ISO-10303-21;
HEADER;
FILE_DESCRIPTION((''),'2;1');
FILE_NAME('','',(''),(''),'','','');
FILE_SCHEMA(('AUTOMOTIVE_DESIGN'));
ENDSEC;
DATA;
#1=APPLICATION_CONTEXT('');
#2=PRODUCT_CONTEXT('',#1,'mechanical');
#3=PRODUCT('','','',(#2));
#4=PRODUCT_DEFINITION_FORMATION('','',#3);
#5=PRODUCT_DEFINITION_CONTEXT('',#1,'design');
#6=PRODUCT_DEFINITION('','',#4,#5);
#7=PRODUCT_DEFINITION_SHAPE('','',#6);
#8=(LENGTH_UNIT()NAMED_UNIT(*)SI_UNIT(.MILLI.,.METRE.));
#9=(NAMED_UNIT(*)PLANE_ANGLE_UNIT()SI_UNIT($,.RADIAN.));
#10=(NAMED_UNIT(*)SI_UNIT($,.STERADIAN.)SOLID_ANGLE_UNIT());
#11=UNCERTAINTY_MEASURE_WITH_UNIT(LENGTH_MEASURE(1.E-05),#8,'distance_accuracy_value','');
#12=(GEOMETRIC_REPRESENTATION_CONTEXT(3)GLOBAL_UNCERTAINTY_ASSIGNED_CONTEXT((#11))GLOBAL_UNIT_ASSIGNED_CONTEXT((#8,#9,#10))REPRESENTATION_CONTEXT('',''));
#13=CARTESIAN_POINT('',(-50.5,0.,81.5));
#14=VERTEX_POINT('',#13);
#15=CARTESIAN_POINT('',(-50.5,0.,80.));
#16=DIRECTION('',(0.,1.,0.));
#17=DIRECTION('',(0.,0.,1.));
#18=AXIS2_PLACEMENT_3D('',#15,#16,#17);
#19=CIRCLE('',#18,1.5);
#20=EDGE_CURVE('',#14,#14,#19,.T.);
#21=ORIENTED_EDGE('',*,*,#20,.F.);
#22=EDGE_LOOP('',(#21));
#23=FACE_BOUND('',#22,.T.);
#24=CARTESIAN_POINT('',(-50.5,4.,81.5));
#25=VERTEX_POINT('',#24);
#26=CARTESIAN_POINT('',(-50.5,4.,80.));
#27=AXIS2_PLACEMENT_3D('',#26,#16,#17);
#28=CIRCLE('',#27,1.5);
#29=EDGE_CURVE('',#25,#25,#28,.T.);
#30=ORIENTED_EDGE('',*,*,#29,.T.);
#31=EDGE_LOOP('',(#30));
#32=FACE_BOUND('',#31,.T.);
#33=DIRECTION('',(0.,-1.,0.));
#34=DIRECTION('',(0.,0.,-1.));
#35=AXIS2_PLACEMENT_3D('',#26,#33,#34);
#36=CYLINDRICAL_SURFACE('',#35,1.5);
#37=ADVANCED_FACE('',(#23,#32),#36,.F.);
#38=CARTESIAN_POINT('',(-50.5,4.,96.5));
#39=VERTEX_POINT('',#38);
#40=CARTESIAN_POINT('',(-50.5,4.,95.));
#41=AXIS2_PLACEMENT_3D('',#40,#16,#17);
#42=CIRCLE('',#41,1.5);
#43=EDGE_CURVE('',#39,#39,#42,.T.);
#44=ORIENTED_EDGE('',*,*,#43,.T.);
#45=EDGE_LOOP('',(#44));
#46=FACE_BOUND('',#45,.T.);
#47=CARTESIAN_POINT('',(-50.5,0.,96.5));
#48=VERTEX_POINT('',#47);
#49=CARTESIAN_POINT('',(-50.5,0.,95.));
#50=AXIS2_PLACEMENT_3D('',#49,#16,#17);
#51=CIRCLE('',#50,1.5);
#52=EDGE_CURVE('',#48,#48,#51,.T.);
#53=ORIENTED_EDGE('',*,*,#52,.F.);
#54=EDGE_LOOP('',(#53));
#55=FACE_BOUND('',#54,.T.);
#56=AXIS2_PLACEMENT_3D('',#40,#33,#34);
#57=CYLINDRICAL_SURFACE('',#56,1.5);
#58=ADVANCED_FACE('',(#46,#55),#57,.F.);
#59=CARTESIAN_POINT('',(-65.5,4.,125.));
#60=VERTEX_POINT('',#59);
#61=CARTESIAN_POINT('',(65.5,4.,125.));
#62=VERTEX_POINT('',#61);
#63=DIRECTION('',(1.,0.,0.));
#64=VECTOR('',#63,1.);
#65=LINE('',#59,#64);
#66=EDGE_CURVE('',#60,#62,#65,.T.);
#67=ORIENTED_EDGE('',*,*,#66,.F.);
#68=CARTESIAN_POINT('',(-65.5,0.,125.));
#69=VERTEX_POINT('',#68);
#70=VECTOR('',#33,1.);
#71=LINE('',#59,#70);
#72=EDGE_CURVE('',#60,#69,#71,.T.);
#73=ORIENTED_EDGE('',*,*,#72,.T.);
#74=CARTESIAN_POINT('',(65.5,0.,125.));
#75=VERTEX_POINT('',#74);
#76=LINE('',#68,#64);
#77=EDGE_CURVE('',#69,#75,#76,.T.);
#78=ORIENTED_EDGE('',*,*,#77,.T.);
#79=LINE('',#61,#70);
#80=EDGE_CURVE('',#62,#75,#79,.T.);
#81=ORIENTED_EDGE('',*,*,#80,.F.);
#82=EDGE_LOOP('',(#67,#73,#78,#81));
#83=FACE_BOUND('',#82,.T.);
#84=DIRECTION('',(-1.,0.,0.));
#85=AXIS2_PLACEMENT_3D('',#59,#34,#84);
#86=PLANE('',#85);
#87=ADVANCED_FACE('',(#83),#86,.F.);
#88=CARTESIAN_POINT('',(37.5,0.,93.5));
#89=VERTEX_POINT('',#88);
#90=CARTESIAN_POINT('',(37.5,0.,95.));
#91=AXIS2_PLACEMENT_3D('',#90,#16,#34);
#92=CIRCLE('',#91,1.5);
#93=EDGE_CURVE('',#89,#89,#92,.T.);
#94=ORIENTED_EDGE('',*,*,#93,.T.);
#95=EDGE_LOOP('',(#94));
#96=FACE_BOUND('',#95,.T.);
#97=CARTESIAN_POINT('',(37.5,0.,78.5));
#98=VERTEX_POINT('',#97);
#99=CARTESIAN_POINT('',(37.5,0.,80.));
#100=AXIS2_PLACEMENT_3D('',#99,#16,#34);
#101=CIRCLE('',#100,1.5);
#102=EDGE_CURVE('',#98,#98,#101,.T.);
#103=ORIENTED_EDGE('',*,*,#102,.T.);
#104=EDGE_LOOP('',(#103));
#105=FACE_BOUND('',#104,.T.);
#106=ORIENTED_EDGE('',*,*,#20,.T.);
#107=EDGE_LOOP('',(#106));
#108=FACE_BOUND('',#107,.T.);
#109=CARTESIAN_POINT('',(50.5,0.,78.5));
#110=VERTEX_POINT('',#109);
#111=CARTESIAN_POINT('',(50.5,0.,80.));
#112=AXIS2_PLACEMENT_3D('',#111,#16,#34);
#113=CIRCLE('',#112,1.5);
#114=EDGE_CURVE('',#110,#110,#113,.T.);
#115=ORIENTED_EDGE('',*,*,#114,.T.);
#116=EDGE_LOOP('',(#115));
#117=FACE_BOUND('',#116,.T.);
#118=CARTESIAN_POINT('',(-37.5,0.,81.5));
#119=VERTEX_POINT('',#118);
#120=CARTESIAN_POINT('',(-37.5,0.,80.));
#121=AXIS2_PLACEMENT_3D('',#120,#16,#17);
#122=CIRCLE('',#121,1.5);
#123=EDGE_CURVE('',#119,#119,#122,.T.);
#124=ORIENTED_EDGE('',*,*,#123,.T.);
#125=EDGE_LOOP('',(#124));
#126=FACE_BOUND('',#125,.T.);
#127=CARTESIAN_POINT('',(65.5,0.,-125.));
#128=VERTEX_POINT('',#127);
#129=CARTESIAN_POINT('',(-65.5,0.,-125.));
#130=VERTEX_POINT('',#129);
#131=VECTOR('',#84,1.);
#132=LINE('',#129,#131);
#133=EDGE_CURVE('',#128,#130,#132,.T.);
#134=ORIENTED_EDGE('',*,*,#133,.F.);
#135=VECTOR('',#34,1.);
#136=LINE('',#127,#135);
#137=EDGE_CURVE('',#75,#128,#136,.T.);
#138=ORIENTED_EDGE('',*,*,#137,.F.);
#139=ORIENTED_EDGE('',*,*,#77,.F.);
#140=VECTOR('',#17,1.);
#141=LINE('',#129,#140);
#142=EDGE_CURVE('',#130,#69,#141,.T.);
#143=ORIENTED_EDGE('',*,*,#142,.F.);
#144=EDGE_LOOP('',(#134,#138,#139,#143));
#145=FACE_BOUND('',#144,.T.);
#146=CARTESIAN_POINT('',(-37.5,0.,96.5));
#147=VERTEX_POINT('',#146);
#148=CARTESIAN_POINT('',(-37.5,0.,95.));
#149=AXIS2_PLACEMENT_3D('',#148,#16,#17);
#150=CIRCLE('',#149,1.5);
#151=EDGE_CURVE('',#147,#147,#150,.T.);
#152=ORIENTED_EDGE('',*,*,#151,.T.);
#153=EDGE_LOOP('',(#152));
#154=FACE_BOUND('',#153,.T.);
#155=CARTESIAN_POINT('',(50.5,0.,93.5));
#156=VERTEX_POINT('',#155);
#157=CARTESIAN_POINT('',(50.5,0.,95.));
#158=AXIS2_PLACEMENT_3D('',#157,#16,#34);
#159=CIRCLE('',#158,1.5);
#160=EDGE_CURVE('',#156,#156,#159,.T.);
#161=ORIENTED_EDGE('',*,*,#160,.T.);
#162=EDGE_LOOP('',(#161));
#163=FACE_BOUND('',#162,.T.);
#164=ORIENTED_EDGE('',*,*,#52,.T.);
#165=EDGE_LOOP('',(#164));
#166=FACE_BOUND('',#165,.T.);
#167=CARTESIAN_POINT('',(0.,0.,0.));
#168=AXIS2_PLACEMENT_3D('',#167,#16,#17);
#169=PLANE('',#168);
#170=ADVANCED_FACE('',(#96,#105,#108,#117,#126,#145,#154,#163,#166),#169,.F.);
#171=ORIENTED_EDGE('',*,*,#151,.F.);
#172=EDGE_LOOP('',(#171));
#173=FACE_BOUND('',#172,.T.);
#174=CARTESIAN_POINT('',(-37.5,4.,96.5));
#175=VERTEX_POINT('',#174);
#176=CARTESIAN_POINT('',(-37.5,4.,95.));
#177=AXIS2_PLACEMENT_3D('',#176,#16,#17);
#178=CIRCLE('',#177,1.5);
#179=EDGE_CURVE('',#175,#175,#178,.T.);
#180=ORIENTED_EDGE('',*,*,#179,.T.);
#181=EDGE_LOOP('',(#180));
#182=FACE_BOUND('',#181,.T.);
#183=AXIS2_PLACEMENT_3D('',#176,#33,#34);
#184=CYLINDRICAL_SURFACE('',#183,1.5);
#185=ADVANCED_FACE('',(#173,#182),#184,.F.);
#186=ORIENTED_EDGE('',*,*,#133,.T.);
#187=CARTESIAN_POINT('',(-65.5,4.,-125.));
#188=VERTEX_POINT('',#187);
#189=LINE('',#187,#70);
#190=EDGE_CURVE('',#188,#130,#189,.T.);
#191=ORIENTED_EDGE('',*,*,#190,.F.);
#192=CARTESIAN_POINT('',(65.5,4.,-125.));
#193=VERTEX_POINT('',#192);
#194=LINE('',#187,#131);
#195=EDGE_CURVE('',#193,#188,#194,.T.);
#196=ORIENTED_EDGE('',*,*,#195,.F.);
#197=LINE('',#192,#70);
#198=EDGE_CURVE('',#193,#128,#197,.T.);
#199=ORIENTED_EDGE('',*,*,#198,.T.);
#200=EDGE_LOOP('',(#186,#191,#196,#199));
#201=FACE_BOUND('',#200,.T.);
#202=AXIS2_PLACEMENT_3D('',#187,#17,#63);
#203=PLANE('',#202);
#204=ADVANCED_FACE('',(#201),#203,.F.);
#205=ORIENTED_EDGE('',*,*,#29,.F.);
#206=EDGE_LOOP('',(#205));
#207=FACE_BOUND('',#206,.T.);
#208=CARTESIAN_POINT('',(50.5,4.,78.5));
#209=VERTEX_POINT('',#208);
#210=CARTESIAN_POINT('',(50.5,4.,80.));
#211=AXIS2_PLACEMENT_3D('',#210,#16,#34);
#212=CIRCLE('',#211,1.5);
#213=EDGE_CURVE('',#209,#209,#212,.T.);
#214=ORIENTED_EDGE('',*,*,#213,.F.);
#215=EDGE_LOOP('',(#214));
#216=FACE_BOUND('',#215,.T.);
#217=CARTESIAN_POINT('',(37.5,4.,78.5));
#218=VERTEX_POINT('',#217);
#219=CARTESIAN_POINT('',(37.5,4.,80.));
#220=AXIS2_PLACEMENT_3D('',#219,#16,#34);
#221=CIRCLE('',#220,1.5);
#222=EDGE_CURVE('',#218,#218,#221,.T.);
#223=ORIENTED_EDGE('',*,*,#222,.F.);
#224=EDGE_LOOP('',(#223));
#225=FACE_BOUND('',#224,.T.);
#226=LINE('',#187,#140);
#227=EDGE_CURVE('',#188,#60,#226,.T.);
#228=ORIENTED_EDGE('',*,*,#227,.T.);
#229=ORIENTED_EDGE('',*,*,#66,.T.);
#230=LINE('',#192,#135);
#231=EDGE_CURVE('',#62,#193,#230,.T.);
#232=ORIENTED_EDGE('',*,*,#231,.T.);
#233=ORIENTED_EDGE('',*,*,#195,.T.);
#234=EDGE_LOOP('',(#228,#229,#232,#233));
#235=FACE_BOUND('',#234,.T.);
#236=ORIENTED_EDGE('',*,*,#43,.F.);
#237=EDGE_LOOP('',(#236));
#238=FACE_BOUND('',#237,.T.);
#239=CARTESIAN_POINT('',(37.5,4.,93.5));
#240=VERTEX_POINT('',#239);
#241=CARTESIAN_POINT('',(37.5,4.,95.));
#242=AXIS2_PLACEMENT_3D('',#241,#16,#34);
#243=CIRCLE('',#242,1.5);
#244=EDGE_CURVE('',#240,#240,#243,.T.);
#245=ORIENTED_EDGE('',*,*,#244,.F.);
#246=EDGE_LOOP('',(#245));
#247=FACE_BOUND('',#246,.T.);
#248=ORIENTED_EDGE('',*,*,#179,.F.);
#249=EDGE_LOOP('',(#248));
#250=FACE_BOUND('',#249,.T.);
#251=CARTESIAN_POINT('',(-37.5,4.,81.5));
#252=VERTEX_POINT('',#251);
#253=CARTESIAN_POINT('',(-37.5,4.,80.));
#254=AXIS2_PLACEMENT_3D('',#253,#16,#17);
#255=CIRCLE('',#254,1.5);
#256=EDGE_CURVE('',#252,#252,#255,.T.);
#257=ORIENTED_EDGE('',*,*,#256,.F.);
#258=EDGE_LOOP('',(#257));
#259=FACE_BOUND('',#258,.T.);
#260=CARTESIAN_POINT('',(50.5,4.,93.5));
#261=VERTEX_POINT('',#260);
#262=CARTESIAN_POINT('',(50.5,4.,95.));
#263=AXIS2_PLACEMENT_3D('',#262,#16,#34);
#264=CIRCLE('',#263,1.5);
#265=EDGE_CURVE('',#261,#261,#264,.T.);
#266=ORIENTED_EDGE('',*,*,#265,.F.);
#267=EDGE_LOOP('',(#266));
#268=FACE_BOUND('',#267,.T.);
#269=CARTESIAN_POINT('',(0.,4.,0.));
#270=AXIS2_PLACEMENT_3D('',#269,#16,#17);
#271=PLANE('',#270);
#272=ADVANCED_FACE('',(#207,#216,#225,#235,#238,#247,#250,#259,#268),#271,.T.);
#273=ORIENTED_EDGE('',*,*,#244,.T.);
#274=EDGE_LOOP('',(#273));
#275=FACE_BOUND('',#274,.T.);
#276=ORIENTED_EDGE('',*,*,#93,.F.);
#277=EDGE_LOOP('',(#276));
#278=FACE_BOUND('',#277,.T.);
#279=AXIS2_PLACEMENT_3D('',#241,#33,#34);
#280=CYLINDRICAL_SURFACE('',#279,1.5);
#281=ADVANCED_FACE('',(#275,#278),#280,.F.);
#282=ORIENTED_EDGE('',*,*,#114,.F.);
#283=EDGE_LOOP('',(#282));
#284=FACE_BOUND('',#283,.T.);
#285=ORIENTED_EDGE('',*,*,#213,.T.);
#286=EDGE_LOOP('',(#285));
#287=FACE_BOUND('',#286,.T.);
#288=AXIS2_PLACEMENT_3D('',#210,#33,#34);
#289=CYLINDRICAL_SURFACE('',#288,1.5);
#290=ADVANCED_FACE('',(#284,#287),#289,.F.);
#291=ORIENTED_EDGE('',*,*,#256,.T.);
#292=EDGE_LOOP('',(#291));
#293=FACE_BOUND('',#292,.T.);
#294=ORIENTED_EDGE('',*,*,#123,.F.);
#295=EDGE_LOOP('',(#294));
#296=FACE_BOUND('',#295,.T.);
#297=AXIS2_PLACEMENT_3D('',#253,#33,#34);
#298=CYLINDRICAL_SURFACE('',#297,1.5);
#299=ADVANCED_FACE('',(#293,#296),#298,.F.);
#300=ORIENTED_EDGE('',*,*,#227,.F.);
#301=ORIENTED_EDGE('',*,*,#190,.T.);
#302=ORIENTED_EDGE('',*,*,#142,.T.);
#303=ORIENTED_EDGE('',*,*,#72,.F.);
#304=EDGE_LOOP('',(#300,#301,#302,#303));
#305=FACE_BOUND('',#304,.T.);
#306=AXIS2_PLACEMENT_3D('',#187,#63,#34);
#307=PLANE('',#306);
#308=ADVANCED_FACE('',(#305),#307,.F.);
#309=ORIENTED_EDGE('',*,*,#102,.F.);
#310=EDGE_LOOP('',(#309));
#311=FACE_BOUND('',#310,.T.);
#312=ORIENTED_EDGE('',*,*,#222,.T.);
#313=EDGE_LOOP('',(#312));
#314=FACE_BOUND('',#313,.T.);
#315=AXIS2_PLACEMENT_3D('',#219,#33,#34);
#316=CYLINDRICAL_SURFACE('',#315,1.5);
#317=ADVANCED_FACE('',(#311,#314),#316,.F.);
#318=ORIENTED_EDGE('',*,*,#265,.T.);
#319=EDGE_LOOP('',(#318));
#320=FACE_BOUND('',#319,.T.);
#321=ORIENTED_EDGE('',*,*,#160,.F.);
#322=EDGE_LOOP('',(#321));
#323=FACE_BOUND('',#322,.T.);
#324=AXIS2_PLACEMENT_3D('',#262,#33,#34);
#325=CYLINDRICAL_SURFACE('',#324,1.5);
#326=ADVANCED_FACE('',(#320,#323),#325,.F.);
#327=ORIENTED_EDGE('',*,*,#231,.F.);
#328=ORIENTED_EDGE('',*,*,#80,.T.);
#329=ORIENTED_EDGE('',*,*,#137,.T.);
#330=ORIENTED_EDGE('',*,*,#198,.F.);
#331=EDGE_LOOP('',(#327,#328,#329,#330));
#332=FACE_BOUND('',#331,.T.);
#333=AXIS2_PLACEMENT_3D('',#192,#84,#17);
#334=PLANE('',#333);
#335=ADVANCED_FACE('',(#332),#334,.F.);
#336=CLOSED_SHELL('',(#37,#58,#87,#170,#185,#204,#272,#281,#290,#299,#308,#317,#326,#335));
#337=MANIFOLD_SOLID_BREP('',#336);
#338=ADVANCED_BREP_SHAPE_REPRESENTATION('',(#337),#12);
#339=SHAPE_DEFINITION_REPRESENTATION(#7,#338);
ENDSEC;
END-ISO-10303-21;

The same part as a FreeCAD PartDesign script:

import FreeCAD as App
import Part
import Sketcher

doc = App.newDocument("Part")
body = doc.addObject("PartDesign::Body", "Body")

sketch1 = body.newObject("Sketcher::SketchObject", "Sketch")
sketch1.AttachmentSupport = (doc.getObject("XZ_Plane"), [""])
sketch1.MapMode = "FlatFace"
sketch1.addGeometry([
    Part.LineSegment(App.Vector(-65.5, -125, 0), App.Vector(-65.5, 125, 0)),
    Part.LineSegment(App.Vector(-65.5, 125, 0), App.Vector(65.5, 125, 0)),
    Part.LineSegment(App.Vector(65.5, 125, 0), App.Vector(65.5, -125, 0)),
    Part.LineSegment(App.Vector(65.5, -125, 0), App.Vector(-65.5, -125, 0)),
    Part.Circle(App.Vector(-50.5, 95, 0), App.Vector(0, 0, 1), 1.5),
    Part.Circle(App.Vector(-37.5, 95, 0), App.Vector(0, 0, 1), 1.5),
    Part.Circle(App.Vector(37.5, 95, 0), App.Vector(0, 0, 1), 1.5),
    Part.Circle(App.Vector(50.5, 95, 0), App.Vector(0, 0, 1), 1.5),
    Part.Circle(App.Vector(-50.5, 80, 0), App.Vector(0, 0, 1), 1.5),
    Part.Circle(App.Vector(-37.5, 80, 0), App.Vector(0, 0, 1), 1.5),
    Part.Circle(App.Vector(37.5, 80, 0), App.Vector(0, 0, 1), 1.5),
    Part.Circle(App.Vector(50.5, 80, 0), App.Vector(0, 0, 1), 1.5),
], False)
sketch1.addConstraint([
    Sketcher.Constraint("Coincident", 0, 2, 1, 1),
    Sketcher.Constraint("Coincident", 1, 2, 2, 1),
    Sketcher.Constraint("Coincident", 2, 2, 3, 1),
    Sketcher.Constraint("Coincident", 3, 2, 0, 1),
    Sketcher.Constraint("Vertical", 0),
    Sketcher.Constraint("Horizontal", 1),
    Sketcher.Constraint("Vertical", 2),
    Sketcher.Constraint("Horizontal", 3),
    Sketcher.Constraint("Equal", 4, 5),
    Sketcher.Constraint("Equal", 5, 6),
    Sketcher.Constraint("Equal", 6, 7),
    Sketcher.Constraint("Equal", 7, 8),
    Sketcher.Constraint("Equal", 8, 9),
    Sketcher.Constraint("Equal", 9, 10),
    Sketcher.Constraint("Equal", 10, 11),
    Sketcher.Constraint("Symmetric", 0, 2, 2, 2, -1, 1),
    Sketcher.Constraint("Symmetric", 5, 3, 6, 3, -2),
    Sketcher.Constraint("Symmetric", 4, 3, 7, 3, -2),
    Sketcher.Constraint("Symmetric", 9, 3, 10, 3, -2),
    Sketcher.Constraint("Symmetric", 8, 3, 11, 3, -2),
    Sketcher.Constraint("Horizontal", 4, 3, 5, 3),
    Sketcher.Constraint("Horizontal", 8, 3, 9, 3),
    Sketcher.Constraint("Vertical", 4, 3, 8, 3),
    Sketcher.Constraint("Vertical", 5, 3, 9, 3),
    Sketcher.Constraint("Diameter", 4, 3.0),
    Sketcher.Constraint("DistanceX", 1, 1, 1, 2, 131.0),
    Sketcher.Constraint("DistanceY", 0, 1, 0, 2, 250.0),
    Sketcher.Constraint("DistanceY", -1, 1, 4, 3, 95.0),
    Sketcher.Constraint("DistanceY", -1, 1, 8, 3, 80.0),
    Sketcher.Constraint("DistanceX", 4, 3, 5, 3, 13.0),
    Sketcher.Constraint("DistanceX", 5, 3, 6, 3, 75.0),
])
pad1 = body.newObject("PartDesign::Pad", "Pad")
pad1.Profile = sketch1
pad1.Length = 4
pad1.Reversed = True

doc.recompute()
